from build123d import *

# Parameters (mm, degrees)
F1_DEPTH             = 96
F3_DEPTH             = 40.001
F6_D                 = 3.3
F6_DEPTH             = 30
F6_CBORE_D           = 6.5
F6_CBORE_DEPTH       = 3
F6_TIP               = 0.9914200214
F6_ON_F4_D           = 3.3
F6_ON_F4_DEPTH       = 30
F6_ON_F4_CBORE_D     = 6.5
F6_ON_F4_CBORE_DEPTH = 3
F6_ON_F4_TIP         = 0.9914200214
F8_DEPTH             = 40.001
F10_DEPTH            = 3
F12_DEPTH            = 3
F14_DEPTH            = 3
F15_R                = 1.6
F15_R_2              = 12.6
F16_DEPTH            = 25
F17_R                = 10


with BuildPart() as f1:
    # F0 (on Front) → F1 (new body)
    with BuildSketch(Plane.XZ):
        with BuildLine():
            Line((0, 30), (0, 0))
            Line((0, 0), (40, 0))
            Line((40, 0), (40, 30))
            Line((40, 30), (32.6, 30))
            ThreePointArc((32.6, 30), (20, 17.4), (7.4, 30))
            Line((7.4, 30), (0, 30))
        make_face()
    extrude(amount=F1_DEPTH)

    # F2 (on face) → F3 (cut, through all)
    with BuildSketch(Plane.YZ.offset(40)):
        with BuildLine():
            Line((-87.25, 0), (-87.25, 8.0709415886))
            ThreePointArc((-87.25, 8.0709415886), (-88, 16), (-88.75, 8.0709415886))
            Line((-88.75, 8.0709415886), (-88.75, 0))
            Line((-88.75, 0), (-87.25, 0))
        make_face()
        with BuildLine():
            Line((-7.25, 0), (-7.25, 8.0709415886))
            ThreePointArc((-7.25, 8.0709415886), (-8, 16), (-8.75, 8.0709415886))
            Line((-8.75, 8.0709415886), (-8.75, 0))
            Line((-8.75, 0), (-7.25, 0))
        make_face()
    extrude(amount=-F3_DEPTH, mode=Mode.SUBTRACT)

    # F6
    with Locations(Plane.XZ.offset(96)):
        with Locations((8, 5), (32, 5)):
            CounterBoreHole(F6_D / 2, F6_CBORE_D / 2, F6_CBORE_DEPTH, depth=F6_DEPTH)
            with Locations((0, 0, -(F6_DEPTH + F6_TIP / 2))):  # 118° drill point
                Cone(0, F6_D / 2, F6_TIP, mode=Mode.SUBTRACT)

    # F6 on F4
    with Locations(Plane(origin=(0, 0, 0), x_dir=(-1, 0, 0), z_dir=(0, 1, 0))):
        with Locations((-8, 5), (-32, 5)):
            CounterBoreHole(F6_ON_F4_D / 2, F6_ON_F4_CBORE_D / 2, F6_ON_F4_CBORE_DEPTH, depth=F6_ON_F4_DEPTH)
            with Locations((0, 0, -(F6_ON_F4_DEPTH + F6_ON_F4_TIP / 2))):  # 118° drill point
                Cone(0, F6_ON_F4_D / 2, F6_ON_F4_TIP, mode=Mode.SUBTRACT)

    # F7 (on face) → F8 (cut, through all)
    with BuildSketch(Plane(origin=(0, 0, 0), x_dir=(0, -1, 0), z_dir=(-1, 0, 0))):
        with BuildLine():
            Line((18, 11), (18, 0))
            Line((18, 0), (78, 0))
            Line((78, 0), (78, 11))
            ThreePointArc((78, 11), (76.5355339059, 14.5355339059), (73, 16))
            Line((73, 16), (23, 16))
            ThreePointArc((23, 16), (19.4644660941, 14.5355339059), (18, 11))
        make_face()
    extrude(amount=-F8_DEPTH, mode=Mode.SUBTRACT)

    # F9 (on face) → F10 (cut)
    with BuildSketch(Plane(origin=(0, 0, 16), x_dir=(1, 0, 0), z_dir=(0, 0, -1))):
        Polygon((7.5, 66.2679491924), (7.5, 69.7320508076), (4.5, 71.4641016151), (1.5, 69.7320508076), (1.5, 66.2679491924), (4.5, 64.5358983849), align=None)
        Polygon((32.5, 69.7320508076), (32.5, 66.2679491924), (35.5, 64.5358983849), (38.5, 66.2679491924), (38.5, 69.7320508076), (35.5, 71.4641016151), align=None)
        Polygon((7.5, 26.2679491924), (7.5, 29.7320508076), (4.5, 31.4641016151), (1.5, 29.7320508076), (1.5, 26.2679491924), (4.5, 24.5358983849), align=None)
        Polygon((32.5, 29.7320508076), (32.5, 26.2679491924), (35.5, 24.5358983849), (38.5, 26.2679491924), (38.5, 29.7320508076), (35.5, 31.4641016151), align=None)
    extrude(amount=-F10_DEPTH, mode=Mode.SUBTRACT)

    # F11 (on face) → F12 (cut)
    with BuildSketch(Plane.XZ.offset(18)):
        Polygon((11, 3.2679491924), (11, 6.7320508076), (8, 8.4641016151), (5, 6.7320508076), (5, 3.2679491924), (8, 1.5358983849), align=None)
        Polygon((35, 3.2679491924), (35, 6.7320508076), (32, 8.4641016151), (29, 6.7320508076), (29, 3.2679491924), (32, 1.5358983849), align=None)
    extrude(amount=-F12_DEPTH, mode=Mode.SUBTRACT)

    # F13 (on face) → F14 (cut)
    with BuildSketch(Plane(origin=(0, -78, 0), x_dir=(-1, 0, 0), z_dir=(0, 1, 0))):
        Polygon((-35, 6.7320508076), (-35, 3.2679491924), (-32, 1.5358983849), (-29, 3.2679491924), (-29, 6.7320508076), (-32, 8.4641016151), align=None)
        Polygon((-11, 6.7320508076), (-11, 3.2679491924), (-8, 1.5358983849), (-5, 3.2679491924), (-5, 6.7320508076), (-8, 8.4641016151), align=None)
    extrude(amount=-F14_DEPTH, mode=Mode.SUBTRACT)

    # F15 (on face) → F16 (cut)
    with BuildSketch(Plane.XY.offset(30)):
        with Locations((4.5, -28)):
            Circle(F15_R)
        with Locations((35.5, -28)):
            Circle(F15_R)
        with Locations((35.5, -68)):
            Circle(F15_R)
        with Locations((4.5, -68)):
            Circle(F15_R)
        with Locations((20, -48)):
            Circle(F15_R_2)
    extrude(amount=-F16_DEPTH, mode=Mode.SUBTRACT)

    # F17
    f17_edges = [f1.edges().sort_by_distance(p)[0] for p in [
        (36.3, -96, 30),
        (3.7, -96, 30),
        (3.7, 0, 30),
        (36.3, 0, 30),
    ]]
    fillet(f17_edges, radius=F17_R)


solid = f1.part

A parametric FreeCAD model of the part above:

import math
import FreeCAD as App
import Part
import Sketcher
from FreeCAD import Vector
Q = App.Units.Quantity


def edges_at(feature, points):
    """Names of the edges that pass closest to the given points."""
    edges = feature.Shape.Edges
    near = lambda p: min(range(len(edges)), key=lambda i: edges[i].distToShape(Part.Vertex(*p))[0])
    return sorted({f"Edge{near(p) + 1}" for p in points})


def add_polygon(sketch, points):
    """Adds a closed chain of lines whose ends are joined by coincident constraints."""
    first, n = sketch.GeometryCount, len(points)
    for a, b in zip(points, points[1:] + points[:1]):
        sketch.addGeometry(Part.LineSegment(App.Vector(*a, 0), App.Vector(*b, 0)), False)
    for i in range(n):
        sketch.addConstraint(Sketcher.Constraint("Coincident", first + i, 2, first + (i + 1) % n, 1))

doc = App.newDocument("Part")
body = doc.addObject("PartDesign::Body", "Body")

sketch1 = body.newObject("Sketcher::SketchObject", "Sketch")
sketch1.AttachmentSupport = (doc.getObject("XZ_Plane"), [""])
sketch1.MapMode = "FlatFace"
sketch1.addGeometry([
    Part.LineSegment(Vector(0, 30, 0), Vector(0, 0, 0)),
    Part.LineSegment(Vector(0, 0, 0), Vector(40, 0, 0)),
    Part.LineSegment(Vector(40, 0, 0), Vector(40, 30, 0)),
    Part.LineSegment(Vector(40, 30, 0), Vector(33, 30, 0)),
    Part.ArcOfCircle(Part.Circle(Vector(20, 30, 0), Vector(0, 0, 1), 13), math.radians(180), math.radians(360)),
    Part.LineSegment(Vector(7, 30, 0), Vector(0, 30, 0)),
], False)
sketch1.addConstraint([
    Sketcher.Constraint("Coincident", 0, 2, 1, 1),
    Sketcher.Constraint("Coincident", 1, 2, 2, 1),
    Sketcher.Constraint("Coincident", 2, 2, 3, 1),
    Sketcher.Constraint("Coincident", 3, 2, 4, 2),
    Sketcher.Constraint("Coincident", 4, 1, 5, 1),
    Sketcher.Constraint("Coincident", 5, 2, 0, 1),
    Sketcher.Constraint("Vertical", 0),
    Sketcher.Constraint("Horizontal", 1),
    Sketcher.Constraint("Vertical", 2),
    Sketcher.Constraint("Horizontal", 3),
    Sketcher.Constraint("Horizontal", 5),
    Sketcher.Constraint("Coincident", 0, 2, -1, 1),
    Sketcher.Constraint("Horizontal", 4, 3, 2, 2),
    Sketcher.Constraint("Horizontal", 3, 2, 4, 1),
    Sketcher.Constraint("Equal", 3, 5),
    Sketcher.Constraint("Radius", 4, 12.6),
    Sketcher.Constraint("DistanceX", 1, 1, 1, 2, 40.0),
    Sketcher.Constraint("DistanceY", 0, 2, 0, 1, 30.0),
])
pad1 = body.newObject("PartDesign::Pad", "Pad")
pad1.Profile = sketch1
pad1.Length = 96

sketch2 = body.newObject("Sketcher::SketchObject", "Sketch001")
sketch2.AttachmentSupport = (doc.getObject("YZ_Plane"), [""])
sketch2.MapMode = "FlatFace"
sketch2.AttachmentOffset = App.Placement(Vector(0, 0, 40), App.Rotation())
sketch2.addGeometry([
    Part.LineSegment(Vector(-87.2, 0, 0), Vector(-87.2, 8.1, 0)),
    Part.ArcOfCircle(Part.Circle(Vector(-88, 12, 0), Vector(0, 0, 1), 4), math.radians(-79), math.radians(259)),
    Part.LineSegment(Vector(-88.8, 8.1, 0), Vector(-88.8, 0, 0)),
    Part.LineSegment(Vector(-88.8, 0, 0), Vector(-87.2, 0, 0)),
    Part.LineSegment(Vector(-7.2, 0, 0), Vector(-7.2, 8.1, 0)),
    Part.ArcOfCircle(Part.Circle(Vector(-8, 12, 0), Vector(0, 0, 1), 4), math.radians(-79), math.radians(259)),
    Part.LineSegment(Vector(-8.8, 8.1, 0), Vector(-8.8, 0, 0)),
    Part.LineSegment(Vector(-8.8, 0, 0), Vector(-7.2, 0, 0)),
], False)
sketch2.addConstraint([
    Sketcher.Constraint("Coincident", 0, 2, 1, 1),
    Sketcher.Constraint("Coincident", 1, 2, 2, 1),
    Sketcher.Constraint("Coincident", 2, 2, 3, 1),
    Sketcher.Constraint("Coincident", 3, 2, 0, 1),
    Sketcher.Constraint("Coincident", 4, 2, 5, 1),
    Sketcher.Constraint("Coincident", 5, 2, 6, 1),
    Sketcher.Constraint("Coincident", 6, 2, 7, 1),
    Sketcher.Constraint("Coincident", 7, 2, 4, 1),
    Sketcher.Constraint("Vertical", 0),
    Sketcher.Constraint("Vertical", 2),
    Sketcher.Constraint("Horizontal", 3),
    Sketcher.Constraint("Vertical", 4),
    Sketcher.Constraint("Vertical", 6),
    Sketcher.Constraint("Horizontal", 7),
    Sketcher.Constraint("Equal", 1, 5),
    Sketcher.Constraint("PointOnObject", 2, 2, -1),
    Sketcher.Constraint("PointOnObject", 6, 2, -1),
    Sketcher.Constraint("Horizontal", 1, 3, 5, 3),
    Sketcher.Constraint("Horizontal", 0, 2, 1, 2),
    Sketcher.Constraint("Horizontal", 1, 2, 4, 2),
    Sketcher.Constraint("Horizontal", 4, 2, 5, 2),
    Sketcher.Constraint("Radius", 1, 4.0),
    Sketcher.Constraint("DistanceX", 3, 1, 3, 2, 1.5),
    Sketcher.Constraint("DistanceX", 1, 3, -1, 1, 88.0),
    Sketcher.Constraint("DistanceY", -1, 1, 1, 3, 12.0),
    Sketcher.Constraint("DistanceX", 5, 3, -1, 1, 8.0),
])
pocket1 = body.newObject("PartDesign::Pocket", "Pocket")
pocket1.Profile = sketch2
pocket1.Type = "ThroughAll"

sketch3 = body.newObject("Sketcher::SketchObject", "Sketch002")
sketch3.AttachmentSupport = (doc.getObject("XZ_Plane"), [""])
sketch3.MapMode = "FlatFace"
sketch3.AttachmentOffset = App.Placement(Vector(0, 0, 96), App.Rotation())
sketch3.addGeometry([
    Part.Circle(Vector(8, 5, 0), Vector(0, 0, 1), 1.6),
    Part.Circle(Vector(32, 5, 0), Vector(0, 0, 1), 1.6),
], False)
sketch3.addConstraint([
    Sketcher.Constraint("Equal", 0, 1),
    Sketcher.Constraint("Horizontal", 0, 3, 1, 3),
    Sketcher.Constraint("Diameter", 0, 3.3),
    Sketcher.Constraint("DistanceX", -1, 1, 0, 3, 8.0),
    Sketcher.Constraint("DistanceY", -1, 1, 0, 3, 5.0),
    Sketcher.Constraint("DistanceX", -1, 1, 1, 3, 32.0),
])
doc.recompute()
hole = body.newObject("PartDesign::Hole", "Hole")
hole.Profile = sketch3
hole.ThreadType = "None"
hole.Diameter = 3.3
hole.DepthType = "Dimension"
hole.Depth = 30
hole.DrillPoint = "Angled"
hole.DrillPointAngle = 118
hole.HoleCutType = "Counterbore"
hole.HoleCutDiameter = 6.5
hole.HoleCutDepth = 3

sketch4 = body.newObject("Sketcher::SketchObject", "Sketch003")
sketch4.AttachmentSupport = (doc.getObject("XZ_Plane"), [""])
sketch4.MapMode = "FlatFace"
sketch4.addGeometry([
    Part.Circle(Vector(8, 5, 0), Vector(0, 0, 1), 1.6),
    Part.Circle(Vector(32, 5, 0), Vector(0, 0, 1), 1.6),
], False)
sketch4.addConstraint([
    Sketcher.Constraint("Equal", 0, 1),
    Sketcher.Constraint("Horizontal", 0, 3, 1, 3),
    Sketcher.Constraint("Diameter", 0, 3.3),
    Sketcher.Constraint("DistanceX", -1, 1, 0, 3, 8.0),
    Sketcher.Constraint("DistanceY", -1, 1, 0, 3, 5.0),
    Sketcher.Constraint("DistanceX", -1, 1, 1, 3, 32.0),
])
doc.recompute()
hole2 = body.newObject("PartDesign::Hole", "Hole001")
hole2.Profile = sketch4
hole2.ThreadType = "None"
hole2.Diameter = 3.3
hole2.DepthType = "Dimension"
hole2.Depth = 30
hole2.DrillPoint = "Angled"
hole2.DrillPointAngle = 118
hole2.HoleCutType = "Counterbore"
hole2.HoleCutDiameter = 6.5
hole2.HoleCutDepth = 3
hole2.Reversed = True

sketch5 = body.newObject("Sketcher::SketchObject", "Sketch004")
sketch5.AttachmentSupport = (doc.getObject("YZ_Plane"), [""])
sketch5.MapMode = "FlatFace"
sketch5.addGeometry([
    Part.LineSegment(Vector(-18, 11, 0), Vector(-18, 0, 0)),
    Part.LineSegment(Vector(-18, 0, 0), Vector(-78, 0, 0)),
    Part.LineSegment(Vector(-78, 0, 0), Vector(-78, 11, 0)),
    Part.ArcOfCircle(Part.Circle(Vector(-73, 11, 0), Vector(0, 0, 1), 5), math.radians(90), math.radians(180)),
    Part.LineSegment(Vector(-73, 16, 0), Vector(-23, 16, 0)),
    Part.ArcOfCircle(Part.Circle(Vector(-23, 11, 0), Vector(0, 0, 1), 5), math.radians(0), math.radians(90)),
], False)
sketch5.addConstraint([
    Sketcher.Constraint("Coincident", 0, 2, 1, 1),
    Sketcher.Constraint("Coincident", 1, 2, 2, 1),
    Sketcher.Constraint("Tangent", 2, 2, 3, 2),
    Sketcher.Constraint("Tangent", 3, 1, 4, 1),
    Sketcher.Constraint("Tangent", 4, 2, 5, 2),
    Sketcher.Constraint("Tangent", 5, 1, 0, 1),
    Sketcher.Constraint("Vertical", 0),
    Sketcher.Constraint("Horizontal", 1),
    Sketcher.Constraint("Vertical", 2),
    Sketcher.Constraint("Horizontal", 4),
    Sketcher.Constraint("Equal", 3, 5),
    Sketcher.Constraint("PointOnObject", 0, 2, -1),
    Sketcher.Constraint("Radius", 3, 5.0),
    Sketcher.Constraint("DistanceX", 1, 2, 1, 1, 60.0),
    Sketcher.Constraint("DistanceY", 0, 2, 0, 1, 11.0),
    Sketcher.Constraint("DistanceX", 3, 3, -1, 1, 73.0),
])
pocket2 = body.newObject("PartDesign::Pocket", "Pocket001")
pocket2.Profile = sketch5
pocket2.Type = "ThroughAll"
pocket2.Reversed = True

sketch6 = body.newObject("Sketcher::SketchObject", "Sketch005")
sketch6.AttachmentSupport = (doc.getObject("XY_Plane"), [""])
sketch6.MapMode = "FlatFace"
sketch6.AttachmentOffset = App.Placement(Vector(0, 0, 16), App.Rotation())
add_polygon(sketch6, [(7.5, -66.3), (7.5, -69.7), (4.5, -71.5), (1.5, -69.7), (1.5, -66.3), (4.5, -64.5)])
add_polygon(sketch6, [(32.5, -69.7), (32.5, -66.3), (35.5, -64.5), (38.5, -66.3), (38.5, -69.7), (35.5, -71.5)])
add_polygon(sketch6, [(7.5, -26.3), (7.5, -29.7), (4.5, -31.5), (1.5, -29.7), (1.5, -26.3), (4.5, -24.5)])
add_polygon(sketch6, [(32.5, -29.7), (32.5, -26.3), (35.5, -24.5), (38.5, -26.3), (38.5, -29.7), (35.5, -31.5)])
sketch6.addConstraint([
    Sketcher.Constraint("Vertical", 0),
    Sketcher.Constraint("Vertical", 3),
    Sketcher.Constraint("Vertical", 6),
    Sketcher.Constraint("Vertical", 9),
    Sketcher.Constraint("Vertical", 12),
    Sketcher.Constraint("Vertical", 15),
    Sketcher.Constraint("Vertical", 18),
    Sketcher.Constraint("Vertical", 21),
    Sketcher.Constraint("Parallel", 1, 4),
    Sketcher.Constraint("Parallel", 2, 5),
    Sketcher.Constraint("Parallel", 4, 7),
    Sketcher.Constraint("Parallel", 5, 8),
    Sketcher.Constraint("Parallel", 7, 10),
    Sketcher.Constraint("Parallel", 8, 11),
    Sketcher.Constraint("Parallel", 10, 13),
    Sketcher.Constraint("Parallel", 11, 14),
    Sketcher.Constraint("Parallel", 13, 16),
    Sketcher.Constraint("Parallel", 14, 17),
    Sketcher.Constraint("Parallel", 16, 19),
    Sketcher.Constraint("Parallel", 17, 20),
    Sketcher.Constraint("Parallel", 19, 22),
    Sketcher.Constraint("Parallel", 20, 23),
    Sketcher.Constraint("Horizontal", 0, 2, 2, 2),
    Sketcher.Constraint("Horizontal", 3, 2, 5, 2),
    Sketcher.Constraint("Horizontal", 5, 2, 6, 2),
    Sketcher.Constraint("Horizontal", 4, 2, 7, 2),
    Sketcher.Constraint("Horizontal", 6, 2, 8, 2),
    Sketcher.Constraint("Horizontal", 2, 2, 9, 2),
    Sketcher.Constraint("Horizontal", 1, 2, 10, 2),
    Sketcher.Constraint("Horizontal", 12, 2, 14, 2),
    Sketcher.Constraint("Horizontal", 15, 2, 17, 2),
    Sketcher.Constraint("Horizontal", 17, 2, 18, 2),
    Sketcher.Constraint("Horizontal", 16, 2, 19, 2),
    Sketcher.Constraint("Horizontal", 18, 2, 20, 2),
    Sketcher.Constraint("Horizontal", 14, 2, 21, 2),
    Sketcher.Constraint("Horizontal", 13, 2, 22, 2),
    Sketcher.Constraint("Vertical", 1, 2, 4, 2),
    Sketcher.Constraint("Vertical", 5, 2, 12, 2),
    Sketcher.Constraint("Vertical", 4, 2, 13, 2),
    Sketcher.Constraint("Vertical", 11, 2, 18, 2),
    Sketcher.Constraint("Equal", 9, 12),
    Sketcher.Constraint("Angle", 1, Q("-150 deg")),
    Sketcher.Constraint("DistanceX", 1, 2, 0, 2, 3.0),
    Sketcher.Constraint("DistanceX", 5, 2, 6, 2, 25.0),
    Sketcher.Constraint("DistanceY", 0, 2, 12, 2, 40.0),
    Sketcher.Constraint("DistanceX", -1, 1, 0, 2, 7.5),
    Sketcher.Constraint("DistanceY", 0, 2, 0, 1, 3.464102),
    Sketcher.Constraint("DistanceY", 1, 2, -1, 1, 71.464102),
])
pocket3 = body.newObject("PartDesign::Pocket", "Pocket002")
pocket3.Profile = sketch6
pocket3.Length = 3
pocket3.Reversed = True

sketch7 = body.newObject("Sketcher::SketchObject", "Sketch006")
sketch7.AttachmentSupport = (doc.getObject("XZ_Plane"), [""])
sketch7.MapMode = "FlatFace"
sketch7.AttachmentOffset = App.Placement(Vector(0, 0, 18), App.Rotation())
add_polygon(sketch7, [(11, 3.3), (11, 6.7), (8, 8.5), (5, 6.7), (5, 3.3), (8, 1.5)])
add_polygon(sketch7, [(35, 3.3), (35, 6.7), (32, 8.5), (29, 6.7), (29, 3.3), (32, 1.5)])
sketch7.addConstraint([
    Sketcher.Constraint("Vertical", 0),
    Sketcher.Constraint("Vertical", 3),
    Sketcher.Constraint("Vertical", 6),
    Sketcher.Constraint("Vertical", 9),
    Sketcher.Constraint("Parallel", 1, 4),
    Sketcher.Constraint("Parallel", 2, 5),
    Sketcher.Constraint("Parallel", 4, 7),
    Sketcher.Constraint("Parallel", 5, 8),
    Sketcher.Constraint("Parallel", 7, 10),
    Sketcher.Constraint("Parallel", 8, 11),
    Sketcher.Constraint("Horizontal", 0, 2, 2, 2),
    Sketcher.Constraint("Horizontal", 3, 2, 5, 2),
    Sketcher.Constraint("Horizontal", 2, 2, 6, 2),
    Sketcher.Constraint("Horizontal", 1, 2, 7, 2),
    Sketcher.Constraint("Horizontal", 6, 2, 8, 2),
    Sketcher.Constraint("Horizontal", 5, 2, 9, 2),
    Sketcher.Constraint("Horizontal", 4, 2, 10, 2),
    Sketcher.Constraint("Vertical", 1, 2, 4, 2),
    Sketcher.Constraint("Angle", 1, Q("150 deg")),
    Sketcher.Constraint("DistanceX", -1, 1, 0, 2, 11.0),
    Sketcher.Constraint("DistanceX", -1, 1, 1, 2, 8.0),
    Sketcher.Constraint("DistanceX", -1, 1, 6, 2, 35.0),
    Sketcher.Constraint("DistanceY", 0, 1, 0, 2, 3.464102),
    Sketcher.Constraint("DistanceY", -1, 1, 1, 2, 8.464102),
])
pocket4 = body.newObject("PartDesign::Pocket", "Pocket003")
pocket4.Profile = sketch7
pocket4.Length = 3

sketch8 = body.newObject("Sketcher::SketchObject", "Sketch007")
sketch8.AttachmentSupport = (doc.getObject("XZ_Plane"), [""])
sketch8.MapMode = "FlatFace"
sketch8.AttachmentOffset = App.Placement(Vector(0, 0, 78), App.Rotation())
add_polygon(sketch8, [(35, 6.7), (35, 3.3), (32, 1.5), (29, 3.3), (29, 6.7), (32, 8.5)])
add_polygon(sketch8, [(11, 6.7), (11, 3.3), (8, 1.5), (5, 3.3), (5, 6.7), (8, 8.5)])
sketch8.addConstraint([
    Sketcher.Constraint("Vertical", 0),
    Sketcher.Constraint("Vertical", 3),
    Sketcher.Constraint("Vertical", 6),
    Sketcher.Constraint("Vertical", 9),
    Sketcher.Constraint("Parallel", 1, 4),
    Sketcher.Constraint("Parallel", 2, 5),
    Sketcher.Constraint("Parallel", 4, 7),
    Sketcher.Constraint("Parallel", 5, 8),
    Sketcher.Constraint("Parallel", 7, 10),
    Sketcher.Constraint("Parallel", 8, 11),
    Sketcher.Constraint("Horizontal", 0, 2, 2, 2),
    Sketcher.Constraint("Horizontal", 3, 2, 5, 2),
    Sketcher.Constraint("Horizontal", 2, 2, 6, 2),
    Sketcher.Constraint("Horizontal", 1, 2, 7, 2),
    Sketcher.Constraint("Horizontal", 6, 2, 8, 2),
    Sketcher.Constraint("Horizontal", 5, 2, 9, 2),
    Sketcher.Constraint("Horizontal", 4, 2, 10, 2),
    Sketcher.Constraint("Vertical", 1, 2, 4, 2),
    Sketcher.Constraint("Angle", 1, Q("-150 deg")),
    Sketcher.Constraint("DistanceX", -1, 1, 0, 2, 35.0),
    Sketcher.Constraint("DistanceX", -1, 1, 1, 2, 32.0),
    Sketcher.Constraint("DistanceX", -1, 1, 6, 2, 11.0),
    Sketcher.Constraint("DistanceY", 0, 2, 0, 1, 3.464102),
    Sketcher.Constraint("DistanceY", -1, 1, 1, 2, 1.535898),
])
pocket5 = body.newObject("PartDesign::Pocket", "Pocket004")
pocket5.Profile = sketch8
pocket5.Length = 3
pocket5.Reversed = True

sketch9 = body.newObject("Sketcher::SketchObject", "Sketch008")
sketch9.AttachmentSupport = (doc.getObject("XY_Plane"), [""])
sketch9.MapMode = "FlatFace"
sketch9.AttachmentOffset = App.Placement(Vector(0, 0, 30), App.Rotation())
sketch9.addGeometry([
    Part.Circle(Vector(4.5, -28, 0), Vector(0, 0, 1), 1.6),
    Part.Circle(Vector(35.5, -28, 0), Vector(0, 0, 1), 1.6),
    Part.Circle(Vector(35.5, -68, 0), Vector(0, 0, 1), 1.6),
    Part.Circle(Vector(4.5, -68, 0), Vector(0, 0, 1), 1.6),
    Part.Circle(Vector(20, -48, 0), Vector(0, 0, 1), 12.6),
], False)
sketch9.addConstraint([
    Sketcher.Constraint("Equal", 0, 1),
    Sketcher.Constraint("Equal", 1, 2),
    Sketcher.Constraint("Equal", 2, 3),
    Sketcher.Constraint("Horizontal", 0, 3, 1, 3),
    Sketcher.Constraint("Horizontal", 2, 3, 3, 3),
    Sketcher.Constraint("Vertical", 1, 3, 2, 3),
    Sketcher.Constraint("Vertical", 0, 3, 3, 3),
    Sketcher.Constraint("Diameter", 0, 3.2),
    Sketcher.Constraint("Diameter", 4, 25.2),
    Sketcher.Constraint("DistanceY", 0, 3, -1, 1, 28.0),
    Sketcher.Constraint("DistanceY", 2, 3, -1, 1, 68.0),
    Sketcher.Constraint("DistanceX", -1, 1, 4, 3, 20.0),
    Sketcher.Constraint("DistanceY", 4, 3, -1, 1, 48.0),
    Sketcher.Constraint("DistanceX", 0, 3, 1, 3, 31.0),
    Sketcher.Constraint("DistanceX", -1, 1, 0, 3, 4.5),
])
pocket6 = body.newObject("PartDesign::Pocket", "Pocket005")
pocket6.Profile = sketch9
pocket6.Length = 25
doc.recompute()

fillet = body.newObject("PartDesign::Fillet", "Fillet")
fillet.Base = (pocket6, edges_at(pocket6, [
    (36.3, -96, 30),
    (3.7, -96, 30),
    (3.7, 0, 30),
    (36.3, 0, 30),
]))
fillet.Radius = 10

doc.recompute()
